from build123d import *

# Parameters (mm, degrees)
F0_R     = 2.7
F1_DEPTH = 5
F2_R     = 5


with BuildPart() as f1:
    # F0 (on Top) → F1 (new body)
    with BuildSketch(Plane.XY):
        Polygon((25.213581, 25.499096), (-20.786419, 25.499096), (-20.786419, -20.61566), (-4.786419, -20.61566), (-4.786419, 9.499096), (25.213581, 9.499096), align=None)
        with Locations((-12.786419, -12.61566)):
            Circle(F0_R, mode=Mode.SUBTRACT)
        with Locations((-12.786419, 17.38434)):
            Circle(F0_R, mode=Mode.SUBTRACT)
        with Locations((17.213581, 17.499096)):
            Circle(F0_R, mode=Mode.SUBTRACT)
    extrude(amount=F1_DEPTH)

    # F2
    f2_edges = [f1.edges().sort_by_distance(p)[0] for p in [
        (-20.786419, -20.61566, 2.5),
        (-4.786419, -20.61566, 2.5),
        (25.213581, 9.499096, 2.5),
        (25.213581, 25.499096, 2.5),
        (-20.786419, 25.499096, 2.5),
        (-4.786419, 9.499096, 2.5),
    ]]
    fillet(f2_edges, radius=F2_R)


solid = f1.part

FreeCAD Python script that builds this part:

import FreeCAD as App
import Part
import Sketcher
from FreeCAD import Vector


def edges_at(feature, points):
    """Names of the edges that pass closest to the given points."""
    edges = feature.Shape.Edges
    near = lambda p: min(range(len(edges)), key=lambda i: edges[i].distToShape(Part.Vertex(*p))[0])
    return sorted({f"Edge{near(p) + 1}" for p in points})

doc = App.newDocument("Part")
body = doc.addObject("PartDesign::Body", "Body")

# Sketch on XY plane
sketch1 = body.newObject("Sketcher::SketchObject", "Sketch")
sketch1.AttachmentSupport = (doc.getObject("XY_Plane"), [""])
sketch1.MapMode = "FlatFace"
sketch1.addGeometry([
    Part.LineSegment(Vector(25.2, 25.5, 0), Vector(-20.8, 25.5, 0)),  # 0
    Part.LineSegment(Vector(-20.8, 25.5, 0), Vector(-20.8, -20.6, 0)),  # 1
    Part.LineSegment(Vector(-20.8, -20.6, 0), Vector(-4.8, -20.6, 0)),  # 2
    Part.LineSegment(Vector(-4.8, -20.6, 0), Vector(-4.8, 9.5, 0)),  # 3
    Part.LineSegment(Vector(-4.8, 9.5, 0), Vector(25.2, 9.5, 0)),  # 4
    Part.LineSegment(Vector(25.2, 9.5, 0), Vector(25.2, 25.5, 0)),  # 5
    Part.Circle(Vector(-12.8, -12.6, 0), Vector(0, 0, 1), 2.7),  # 6
    Part.Circle(Vector(-12.8, 17.4, 0), Vector(0, 0, 1), 2.7),  # 7
    Part.Circle(Vector(17.2, 17.5, 0), Vector(0, 0, 1), 2.7),  # 8
], False)
sketch1.addConstraint([
    Sketcher.Constraint("Coincident", 0, 2, 1, 1),
    Sketcher.Constraint("Coincident", 1, 2, 2, 1),
    Sketcher.Constraint("Coincident", 2, 2, 3, 1),
    Sketcher.Constraint("Coincident", 3, 2, 4, 1),
    Sketcher.Constraint("Coincident", 4, 2, 5, 1),
    Sketcher.Constraint("Coincident", 5, 2, 0, 1),
    Sketcher.Constraint("Horizontal", 0),
    Sketcher.Constraint("Vertical", 1),
    Sketcher.Constraint("Horizontal", 2),
    Sketcher.Constraint("Vertical", 3),
    Sketcher.Constraint("Horizontal", 4),
    Sketcher.Constraint("Vertical", 5),
    Sketcher.Constraint("Equal", 6, 7),
    Sketcher.Constraint("Equal", 7, 8),
    Sketcher.Constraint("Vertical", 6, 3, 7, 3),
    Sketcher.Constraint("Equal", 2, 5),
    Sketcher.Constraint("Diameter", 6, 5.4),
    Sketcher.Constraint("DistanceX", 0, 2, 0, 1, 46.0),
    Sketcher.Constraint("DistanceX", 2, 1, 2, 2, 16.0),
    Sketcher.Constraint("DistanceY", 6, 3, 7, 3, 30.0),
    Sketcher.Constraint("DistanceX", 7, 3, 8, 3, 30.0),
    Sketcher.Constraint("DistanceX", 0, 2, 7, 3, 8.0),
    Sketcher.Constraint("DistanceY", 8, 3, 0, 2, 8.0),
    Sketcher.Constraint("DistanceY", 1, 2, 6, 3, 8.0),
    Sketcher.Constraint("DistanceY", 1, 2, 1, 1, 46.114756),
    Sketcher.Constraint("DistanceX", 6, 3, -1, 1, 12.786419),
    Sketcher.Constraint("DistanceY", 6, 3, -1, 1, 12.61566),
])
pad1 = body.newObject("PartDesign::Pad", "Pad")
pad1.Profile = sketch1
pad1.Length = 5
doc.recompute()

fillet = body.newObject("PartDesign::Fillet", "Fillet")
fillet.Base = (pad1, edges_at(pad1, [
    (-20.786, -20.616, 2.5),
    (-4.786, -20.616, 2.5),
    (25.214, 9.499, 2.5),
    (25.214, 25.499, 2.5),
    (-20.786, 25.499, 2.5),
    (-4.786, 9.499, 2.5),
]))
fillet.Radius = 5

doc.recompute()
